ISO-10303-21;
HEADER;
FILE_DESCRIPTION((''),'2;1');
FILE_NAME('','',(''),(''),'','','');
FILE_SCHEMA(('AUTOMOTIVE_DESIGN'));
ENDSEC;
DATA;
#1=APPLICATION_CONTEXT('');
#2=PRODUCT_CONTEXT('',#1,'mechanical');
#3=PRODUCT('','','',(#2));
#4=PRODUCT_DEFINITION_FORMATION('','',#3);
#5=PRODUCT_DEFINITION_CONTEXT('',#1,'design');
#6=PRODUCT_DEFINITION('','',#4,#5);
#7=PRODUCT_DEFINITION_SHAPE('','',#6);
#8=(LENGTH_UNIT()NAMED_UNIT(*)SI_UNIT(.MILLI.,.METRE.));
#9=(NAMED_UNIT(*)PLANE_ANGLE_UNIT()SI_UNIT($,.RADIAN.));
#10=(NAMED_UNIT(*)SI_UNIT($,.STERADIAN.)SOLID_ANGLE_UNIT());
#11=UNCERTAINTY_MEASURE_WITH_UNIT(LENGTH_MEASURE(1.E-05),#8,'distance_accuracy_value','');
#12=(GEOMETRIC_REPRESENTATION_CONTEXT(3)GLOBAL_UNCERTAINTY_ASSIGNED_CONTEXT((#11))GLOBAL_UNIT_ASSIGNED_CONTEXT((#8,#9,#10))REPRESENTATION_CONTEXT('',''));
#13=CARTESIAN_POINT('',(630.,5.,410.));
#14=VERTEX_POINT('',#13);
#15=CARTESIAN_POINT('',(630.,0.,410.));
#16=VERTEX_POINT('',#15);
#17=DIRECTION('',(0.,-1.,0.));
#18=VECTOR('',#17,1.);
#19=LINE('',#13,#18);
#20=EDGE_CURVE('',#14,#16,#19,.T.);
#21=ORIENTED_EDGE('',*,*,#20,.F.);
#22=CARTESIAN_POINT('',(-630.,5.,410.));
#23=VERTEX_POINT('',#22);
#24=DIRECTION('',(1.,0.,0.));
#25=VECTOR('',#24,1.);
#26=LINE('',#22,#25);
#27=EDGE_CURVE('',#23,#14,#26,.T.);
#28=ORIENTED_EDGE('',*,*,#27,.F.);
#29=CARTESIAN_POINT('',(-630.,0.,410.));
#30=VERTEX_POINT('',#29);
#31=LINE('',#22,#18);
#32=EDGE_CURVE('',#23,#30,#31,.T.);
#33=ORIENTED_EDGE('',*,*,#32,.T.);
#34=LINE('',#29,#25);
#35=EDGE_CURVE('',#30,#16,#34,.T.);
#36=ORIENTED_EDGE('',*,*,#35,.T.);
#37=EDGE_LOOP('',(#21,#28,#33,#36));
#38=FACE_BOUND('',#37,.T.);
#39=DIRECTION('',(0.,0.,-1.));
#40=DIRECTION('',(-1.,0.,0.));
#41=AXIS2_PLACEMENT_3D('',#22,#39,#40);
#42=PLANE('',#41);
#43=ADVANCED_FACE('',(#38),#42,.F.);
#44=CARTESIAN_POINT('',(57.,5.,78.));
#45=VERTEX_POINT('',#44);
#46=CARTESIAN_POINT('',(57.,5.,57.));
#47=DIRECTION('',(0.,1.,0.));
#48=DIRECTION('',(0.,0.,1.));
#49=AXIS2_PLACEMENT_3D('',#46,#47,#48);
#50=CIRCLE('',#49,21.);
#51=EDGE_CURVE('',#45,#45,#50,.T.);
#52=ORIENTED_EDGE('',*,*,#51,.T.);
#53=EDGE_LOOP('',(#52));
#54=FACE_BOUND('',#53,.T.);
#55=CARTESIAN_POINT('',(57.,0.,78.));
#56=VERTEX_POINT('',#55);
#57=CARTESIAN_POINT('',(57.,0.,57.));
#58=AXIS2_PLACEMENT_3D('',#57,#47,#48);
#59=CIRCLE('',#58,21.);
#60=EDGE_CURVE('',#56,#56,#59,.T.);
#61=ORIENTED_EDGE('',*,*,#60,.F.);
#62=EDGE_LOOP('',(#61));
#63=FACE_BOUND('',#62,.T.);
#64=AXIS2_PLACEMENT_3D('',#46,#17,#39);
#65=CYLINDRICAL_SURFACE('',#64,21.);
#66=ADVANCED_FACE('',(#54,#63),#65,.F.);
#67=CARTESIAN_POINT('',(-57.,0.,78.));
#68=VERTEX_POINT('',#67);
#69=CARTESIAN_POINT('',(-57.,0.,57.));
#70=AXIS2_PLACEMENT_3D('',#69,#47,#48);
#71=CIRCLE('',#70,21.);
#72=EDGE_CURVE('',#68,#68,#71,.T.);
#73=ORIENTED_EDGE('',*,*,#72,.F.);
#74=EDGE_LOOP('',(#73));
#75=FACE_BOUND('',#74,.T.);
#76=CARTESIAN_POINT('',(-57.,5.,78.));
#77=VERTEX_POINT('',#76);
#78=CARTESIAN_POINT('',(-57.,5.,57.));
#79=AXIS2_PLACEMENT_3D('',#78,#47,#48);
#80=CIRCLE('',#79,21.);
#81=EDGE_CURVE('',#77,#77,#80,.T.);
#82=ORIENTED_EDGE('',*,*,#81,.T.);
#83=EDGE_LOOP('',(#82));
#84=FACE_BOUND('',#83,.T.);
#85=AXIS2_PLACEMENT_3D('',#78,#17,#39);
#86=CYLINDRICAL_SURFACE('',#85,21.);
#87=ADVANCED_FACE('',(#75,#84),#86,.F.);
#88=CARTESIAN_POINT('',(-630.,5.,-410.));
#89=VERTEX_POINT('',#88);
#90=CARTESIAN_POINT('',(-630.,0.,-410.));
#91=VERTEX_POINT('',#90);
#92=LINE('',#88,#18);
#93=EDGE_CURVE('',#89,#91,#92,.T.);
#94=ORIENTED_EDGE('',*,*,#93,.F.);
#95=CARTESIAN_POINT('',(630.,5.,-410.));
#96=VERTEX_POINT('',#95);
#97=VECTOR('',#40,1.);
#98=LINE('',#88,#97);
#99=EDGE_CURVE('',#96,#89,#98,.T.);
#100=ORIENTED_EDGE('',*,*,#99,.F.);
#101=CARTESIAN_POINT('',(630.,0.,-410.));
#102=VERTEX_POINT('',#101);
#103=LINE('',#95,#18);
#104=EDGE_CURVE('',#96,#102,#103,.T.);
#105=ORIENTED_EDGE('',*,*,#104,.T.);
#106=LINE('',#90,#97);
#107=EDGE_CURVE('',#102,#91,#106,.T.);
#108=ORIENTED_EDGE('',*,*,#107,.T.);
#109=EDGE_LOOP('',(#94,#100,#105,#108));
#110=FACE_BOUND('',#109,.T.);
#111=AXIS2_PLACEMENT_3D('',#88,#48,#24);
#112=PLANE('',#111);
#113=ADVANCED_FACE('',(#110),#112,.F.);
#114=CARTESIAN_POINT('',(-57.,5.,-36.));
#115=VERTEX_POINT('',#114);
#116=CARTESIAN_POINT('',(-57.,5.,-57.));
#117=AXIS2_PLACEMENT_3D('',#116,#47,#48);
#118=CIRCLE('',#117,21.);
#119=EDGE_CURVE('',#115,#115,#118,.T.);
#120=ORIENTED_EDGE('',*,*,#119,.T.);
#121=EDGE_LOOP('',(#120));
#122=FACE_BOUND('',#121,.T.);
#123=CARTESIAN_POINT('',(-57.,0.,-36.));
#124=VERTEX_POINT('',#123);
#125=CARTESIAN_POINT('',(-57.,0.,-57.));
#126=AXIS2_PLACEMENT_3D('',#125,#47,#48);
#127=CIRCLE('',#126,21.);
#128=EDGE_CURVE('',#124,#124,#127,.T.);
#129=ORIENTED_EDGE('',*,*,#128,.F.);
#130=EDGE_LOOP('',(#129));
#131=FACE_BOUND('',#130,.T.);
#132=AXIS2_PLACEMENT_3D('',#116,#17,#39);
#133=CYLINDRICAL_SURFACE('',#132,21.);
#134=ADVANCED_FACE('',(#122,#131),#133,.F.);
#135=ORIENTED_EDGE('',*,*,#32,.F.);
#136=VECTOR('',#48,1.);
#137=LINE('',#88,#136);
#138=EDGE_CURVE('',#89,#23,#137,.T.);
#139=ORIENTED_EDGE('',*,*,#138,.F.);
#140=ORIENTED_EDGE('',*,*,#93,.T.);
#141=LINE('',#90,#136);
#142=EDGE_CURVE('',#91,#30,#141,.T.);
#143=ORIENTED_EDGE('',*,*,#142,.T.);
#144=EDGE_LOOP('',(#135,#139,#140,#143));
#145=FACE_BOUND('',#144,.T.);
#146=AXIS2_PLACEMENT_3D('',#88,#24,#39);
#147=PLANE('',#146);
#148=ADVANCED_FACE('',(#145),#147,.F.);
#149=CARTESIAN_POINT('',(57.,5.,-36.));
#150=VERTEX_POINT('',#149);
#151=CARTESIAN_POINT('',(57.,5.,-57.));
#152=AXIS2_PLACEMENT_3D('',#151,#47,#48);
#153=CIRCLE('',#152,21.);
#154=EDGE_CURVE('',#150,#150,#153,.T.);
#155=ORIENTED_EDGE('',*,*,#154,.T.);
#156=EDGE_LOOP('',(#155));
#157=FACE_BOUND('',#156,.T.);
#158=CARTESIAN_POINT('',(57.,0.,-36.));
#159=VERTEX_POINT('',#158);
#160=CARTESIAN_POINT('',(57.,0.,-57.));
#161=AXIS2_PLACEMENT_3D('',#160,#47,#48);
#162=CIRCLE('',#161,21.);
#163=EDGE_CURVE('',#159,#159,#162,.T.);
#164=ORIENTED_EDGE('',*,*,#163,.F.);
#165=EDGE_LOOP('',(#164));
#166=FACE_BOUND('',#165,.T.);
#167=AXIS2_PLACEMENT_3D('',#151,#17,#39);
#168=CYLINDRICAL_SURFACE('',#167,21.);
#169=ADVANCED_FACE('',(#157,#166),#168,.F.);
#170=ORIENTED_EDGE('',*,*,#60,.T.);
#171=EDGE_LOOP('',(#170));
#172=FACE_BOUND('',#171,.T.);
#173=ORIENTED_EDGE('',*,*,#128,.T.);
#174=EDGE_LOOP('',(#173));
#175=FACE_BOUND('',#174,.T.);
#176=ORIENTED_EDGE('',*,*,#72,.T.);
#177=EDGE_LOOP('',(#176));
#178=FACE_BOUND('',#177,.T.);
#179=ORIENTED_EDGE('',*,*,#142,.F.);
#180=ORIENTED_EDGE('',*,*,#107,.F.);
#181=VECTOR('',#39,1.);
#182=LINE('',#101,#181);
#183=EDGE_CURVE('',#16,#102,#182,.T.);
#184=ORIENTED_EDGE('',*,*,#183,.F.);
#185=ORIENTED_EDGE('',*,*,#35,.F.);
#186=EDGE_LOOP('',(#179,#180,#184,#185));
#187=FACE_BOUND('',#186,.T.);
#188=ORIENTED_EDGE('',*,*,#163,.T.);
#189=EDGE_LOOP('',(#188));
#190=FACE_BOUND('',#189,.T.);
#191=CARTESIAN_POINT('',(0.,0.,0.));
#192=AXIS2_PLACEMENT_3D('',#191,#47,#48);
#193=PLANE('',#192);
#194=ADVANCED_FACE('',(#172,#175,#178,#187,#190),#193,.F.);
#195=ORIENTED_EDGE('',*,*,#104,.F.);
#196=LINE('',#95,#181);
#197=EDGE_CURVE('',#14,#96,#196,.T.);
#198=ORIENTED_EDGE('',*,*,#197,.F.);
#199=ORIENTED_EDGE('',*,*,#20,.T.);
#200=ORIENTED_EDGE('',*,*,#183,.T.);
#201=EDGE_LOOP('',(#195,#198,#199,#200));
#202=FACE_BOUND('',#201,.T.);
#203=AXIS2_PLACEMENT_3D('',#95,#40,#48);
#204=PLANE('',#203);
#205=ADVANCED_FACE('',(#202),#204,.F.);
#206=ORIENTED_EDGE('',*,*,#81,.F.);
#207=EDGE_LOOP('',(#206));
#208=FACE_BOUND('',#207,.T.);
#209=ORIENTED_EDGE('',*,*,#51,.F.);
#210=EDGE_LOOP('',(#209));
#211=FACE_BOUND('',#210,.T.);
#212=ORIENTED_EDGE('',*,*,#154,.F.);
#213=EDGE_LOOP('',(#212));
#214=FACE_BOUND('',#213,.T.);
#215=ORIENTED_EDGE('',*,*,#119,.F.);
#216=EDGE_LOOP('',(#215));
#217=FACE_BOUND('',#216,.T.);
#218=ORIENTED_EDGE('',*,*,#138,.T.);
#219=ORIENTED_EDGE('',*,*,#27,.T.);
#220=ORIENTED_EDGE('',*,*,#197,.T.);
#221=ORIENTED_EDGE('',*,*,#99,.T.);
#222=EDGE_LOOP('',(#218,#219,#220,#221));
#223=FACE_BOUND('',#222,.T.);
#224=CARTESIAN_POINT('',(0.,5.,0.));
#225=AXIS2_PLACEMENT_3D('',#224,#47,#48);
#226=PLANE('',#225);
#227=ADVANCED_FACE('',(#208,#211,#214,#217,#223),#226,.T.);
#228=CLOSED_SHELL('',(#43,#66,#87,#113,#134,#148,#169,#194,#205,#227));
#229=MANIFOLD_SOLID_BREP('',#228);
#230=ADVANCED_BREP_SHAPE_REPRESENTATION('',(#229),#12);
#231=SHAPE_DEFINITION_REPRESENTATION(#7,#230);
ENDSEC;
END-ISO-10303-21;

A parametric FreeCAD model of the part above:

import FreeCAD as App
import Part
import Sketcher


def add_polygon(sketch, points):
    """Adds a closed chain of lines whose ends are joined by coincident constraints."""
    first, n = sketch.GeometryCount, len(points)
    for a, b in zip(points, points[1:] + points[:1]):
        sketch.addGeometry(Part.LineSegment(App.Vector(*a, 0), App.Vector(*b, 0)), False)
    for i in range(n):
        sketch.addConstraint(Sketcher.Constraint("Coincident", first + i, 2, first + (i + 1) % n, 1))

doc = App.newDocument("Part")
body = doc.addObject("PartDesign::Body", "Body")

# Sketch on XZ plane
sketch1 = body.newObject("Sketcher::SketchObject", "Sketch")
sketch1.AttachmentSupport = (doc.getObject("XZ_Plane"), [""])
sketch1.MapMode = "FlatFace"
add_polygon(sketch1, [(-630, -410), (-630, 410), (630, 410), (630, -410)])  # lines 0-3
sketch1.addGeometry(Part.Circle(App.Vector(-57, 57, 0), App.Vector(0, 0, 1), 21), False)  # 4
sketch1.addGeometry(Part.Circle(App.Vector(57, 57, 0), App.Vector(0, 0, 1), 21), False)  # 5
sketch1.addGeometry(Part.Circle(App.Vector(-57, -57, 0), App.Vector(0, 0, 1), 21), False)  # 6
sketch1.addGeometry(Part.Circle(App.Vector(57, -57, 0), App.Vector(0, 0, 1), 21), False)  # 7
sketch1.addConstraint([
    Sketcher.Constraint("Vertical", 0),
    Sketcher.Constraint("Horizontal", 1),
    Sketcher.Constraint("Vertical", 2),
    Sketcher.Constraint("Horizontal", 3),
    Sketcher.Constraint("Equal", 4, 5),
    Sketcher.Constraint("Equal", 5, 6),
    Sketcher.Constraint("Equal", 6, 7),
    Sketcher.Constraint("Symmetric", 5, 3, 6, 3, -1, 1),
    Sketcher.Constraint("Symmetric", 4, 3, 7, 3, -1, 1),
    Sketcher.Constraint("Symmetric", 0, 2, 2, 2, -1, 1),
    Sketcher.Constraint("Symmetric", 4, 3, 5, 3, -2),
    Sketcher.Constraint("Diameter", 4, 42.0),
    Sketcher.Constraint("DistanceX", 1, 1, 1, 2, 1260.0),
    Sketcher.Constraint("DistanceY", 0, 1, 0, 2, 820.0),
    Sketcher.Constraint("DistanceX", 4, 3, -1, 1, 57.0),
    Sketcher.Constraint("DistanceY", -1, 1, 4, 3, 57.0),
])
pad1 = body.newObject("PartDesign::Pad", "Pad")
pad1.Profile = sketch1
pad1.Length = 5
pad1.Reversed = True

doc.recompute()
